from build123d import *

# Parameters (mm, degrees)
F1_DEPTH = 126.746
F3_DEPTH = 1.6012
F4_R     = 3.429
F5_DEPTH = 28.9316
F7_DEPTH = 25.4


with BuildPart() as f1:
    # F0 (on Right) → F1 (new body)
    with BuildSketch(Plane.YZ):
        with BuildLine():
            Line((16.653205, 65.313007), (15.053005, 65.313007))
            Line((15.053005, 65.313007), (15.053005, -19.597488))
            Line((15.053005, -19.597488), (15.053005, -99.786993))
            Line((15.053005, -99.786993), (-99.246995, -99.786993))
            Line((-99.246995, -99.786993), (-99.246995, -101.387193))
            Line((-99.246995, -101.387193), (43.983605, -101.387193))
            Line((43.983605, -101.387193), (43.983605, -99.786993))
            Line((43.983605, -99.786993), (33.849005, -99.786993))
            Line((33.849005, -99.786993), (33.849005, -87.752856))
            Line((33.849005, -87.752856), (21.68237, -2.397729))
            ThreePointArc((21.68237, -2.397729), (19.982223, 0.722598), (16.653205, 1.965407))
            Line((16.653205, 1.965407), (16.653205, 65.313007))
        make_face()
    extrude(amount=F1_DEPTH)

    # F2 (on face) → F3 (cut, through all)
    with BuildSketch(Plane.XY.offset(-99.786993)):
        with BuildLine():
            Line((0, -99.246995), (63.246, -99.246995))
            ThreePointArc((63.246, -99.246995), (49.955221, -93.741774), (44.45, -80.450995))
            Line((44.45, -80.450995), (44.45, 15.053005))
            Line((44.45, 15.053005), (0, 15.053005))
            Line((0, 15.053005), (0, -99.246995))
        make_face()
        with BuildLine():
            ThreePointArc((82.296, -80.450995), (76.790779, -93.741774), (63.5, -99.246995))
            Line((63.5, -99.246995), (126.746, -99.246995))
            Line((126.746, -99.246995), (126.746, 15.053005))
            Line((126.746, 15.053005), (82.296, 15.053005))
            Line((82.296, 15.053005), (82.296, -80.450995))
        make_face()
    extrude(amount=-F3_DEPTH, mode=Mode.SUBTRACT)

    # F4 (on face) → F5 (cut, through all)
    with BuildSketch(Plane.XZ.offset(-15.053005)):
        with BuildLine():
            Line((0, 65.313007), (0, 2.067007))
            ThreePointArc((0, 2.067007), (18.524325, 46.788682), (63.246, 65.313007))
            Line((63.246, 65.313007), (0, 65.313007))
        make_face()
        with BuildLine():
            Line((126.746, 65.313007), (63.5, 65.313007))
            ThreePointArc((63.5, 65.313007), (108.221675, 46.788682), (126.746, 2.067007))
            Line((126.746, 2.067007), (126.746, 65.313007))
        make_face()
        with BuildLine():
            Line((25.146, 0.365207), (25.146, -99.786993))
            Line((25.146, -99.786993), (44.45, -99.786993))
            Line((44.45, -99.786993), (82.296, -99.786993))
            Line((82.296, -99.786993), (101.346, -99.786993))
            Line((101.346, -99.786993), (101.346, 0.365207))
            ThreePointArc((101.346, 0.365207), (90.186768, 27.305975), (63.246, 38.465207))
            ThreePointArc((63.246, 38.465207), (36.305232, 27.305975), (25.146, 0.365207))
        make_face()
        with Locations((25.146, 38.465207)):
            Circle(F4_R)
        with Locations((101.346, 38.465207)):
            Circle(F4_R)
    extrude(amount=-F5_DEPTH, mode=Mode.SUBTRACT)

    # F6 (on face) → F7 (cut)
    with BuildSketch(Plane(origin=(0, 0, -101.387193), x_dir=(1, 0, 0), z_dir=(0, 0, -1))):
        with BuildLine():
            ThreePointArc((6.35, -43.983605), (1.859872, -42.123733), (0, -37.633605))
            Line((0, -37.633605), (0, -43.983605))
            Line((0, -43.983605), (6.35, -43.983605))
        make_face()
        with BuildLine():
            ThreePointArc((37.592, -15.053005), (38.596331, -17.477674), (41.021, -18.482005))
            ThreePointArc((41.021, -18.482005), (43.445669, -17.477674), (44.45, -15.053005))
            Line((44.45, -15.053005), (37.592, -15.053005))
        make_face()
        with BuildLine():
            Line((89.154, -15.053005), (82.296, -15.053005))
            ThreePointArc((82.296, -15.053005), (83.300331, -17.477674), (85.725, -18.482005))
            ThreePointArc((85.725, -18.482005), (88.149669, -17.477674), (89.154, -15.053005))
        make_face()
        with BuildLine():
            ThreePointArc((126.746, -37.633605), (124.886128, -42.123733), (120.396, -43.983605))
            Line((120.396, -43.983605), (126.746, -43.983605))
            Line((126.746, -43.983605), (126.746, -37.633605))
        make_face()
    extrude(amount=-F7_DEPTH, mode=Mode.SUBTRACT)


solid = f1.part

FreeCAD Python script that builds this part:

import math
import FreeCAD as App
import Part
import Sketcher
Q = App.Units.Quantity

doc = App.newDocument("Part")
body = doc.addObject("PartDesign::Body", "Body")

# Sketch on YZ plane
sketch1 = body.newObject("Sketcher::SketchObject", "Sketch")
sketch1.AttachmentSupport = (doc.getObject("YZ_Plane"), [""])
sketch1.MapMode = "FlatFace"
sketch1.addGeometry(Part.LineSegment(App.Vector(16.7, 65.3, 0), App.Vector(15.1, 65.3, 0)), False)
sketch1.addGeometry(Part.LineSegment(App.Vector(15.1, 65.3, 0), App.Vector(15.1, -99.8, 0)), False)
sketch1.addGeometry(Part.LineSegment(App.Vector(15.1, -99.8, 0), App.Vector(-99.2, -99.8, 0)), False)
sketch1.addGeometry(Part.LineSegment(App.Vector(-99.2, -99.8, 0), App.Vector(-99.2, -101.4, 0)), False)
sketch1.addGeometry(Part.LineSegment(App.Vector(-99.2, -101.4, 0), App.Vector(44, -101.4, 0)), False)
sketch1.addGeometry(Part.LineSegment(App.Vector(44, -101.4, 0), App.Vector(44, -99.8, 0)), False)
sketch1.addGeometry(Part.LineSegment(App.Vector(44, -99.8, 0), App.Vector(33.8, -99.8, 0)), False)
sketch1.addGeometry(Part.LineSegment(App.Vector(33.8, -99.8, 0), App.Vector(33.8, -87.8, 0)), False)
sketch1.addGeometry(Part.LineSegment(App.Vector(33.8, -87.8, 0), App.Vector(21.7, -2.4, 0)), False)
sketch1.addGeometry(Part.ArcOfCircle(Part.Circle(App.Vector(16.7, -3.1, 0), App.Vector(0, 0, 1), 5.1), math.radians(8), math.radians(90)), False)
sketch1.addGeometry(Part.LineSegment(App.Vector(16.7, 2, 0), App.Vector(16.7, 65.3, 0)), False)
sketch1.addConstraint(Sketcher.Constraint("Coincident", 0, 2, 1, 1))
sketch1.addConstraint(Sketcher.Constraint("Coincident", 1, 2, 2, 1))
sketch1.addConstraint(Sketcher.Constraint("Coincident", 2, 2, 3, 1))
sketch1.addConstraint(Sketcher.Constraint("Coincident", 3, 2, 4, 1))
sketch1.addConstraint(Sketcher.Constraint("Coincident", 4, 2, 5, 1))
sketch1.addConstraint(Sketcher.Constraint("Coincident", 5, 2, 6, 1))
sketch1.addConstraint(Sketcher.Constraint("Coincident", 6, 2, 7, 1))
sketch1.addConstraint(Sketcher.Constraint("Coincident", 7, 2, 8, 1))
sketch1.addConstraint(Sketcher.Constraint("Tangent", 8, 2, 9, 1))
sketch1.addConstraint(Sketcher.Constraint("Coincident", 9, 2, 10, 1))
sketch1.addConstraint(Sketcher.Constraint("Coincident", 10, 2, 0, 1))
sketch1.addConstraint(Sketcher.Constraint("Horizontal", 0))
sketch1.addConstraint(Sketcher.Constraint("Vertical", 1))
sketch1.addConstraint(Sketcher.Constraint("Horizontal", 2))
sketch1.addConstraint(Sketcher.Constraint("Vertical", 3))
sketch1.addConstraint(Sketcher.Constraint("Horizontal", 4))
sketch1.addConstraint(Sketcher.Constraint("Vertical", 5))
sketch1.addConstraint(Sketcher.Constraint("Horizontal", 6))
sketch1.addConstraint(Sketcher.Constraint("Vertical", 7))
sketch1.addConstraint(Sketcher.Constraint("Vertical", 10))
sketch1.addConstraint(Sketcher.Constraint("Horizontal", 2, 2, 5, 2))
sketch1.addConstraint(Sketcher.Constraint("Equal", 0, 3))
sketch1.addConstraint(Sketcher.Constraint("Radius", 9, Q("0.2 in")))
sketch1.addConstraint(Sketcher.Constraint("DistanceX", 2, 2, 2, 1, Q("4.5 in")))
sketch1.addConstraint(Sketcher.Constraint("DistanceY", 1, 2, 1, 1, Q("6.5 in")))
sketch1.addConstraint(Sketcher.Constraint("DistanceX", 0, 2, 0, 1, Q("0.063 in")))
sketch1.addConstraint(Sketcher.Constraint("DistanceX", 4, 1, 4, 2, Q("5.639 in")))
sketch1.addConstraint(Sketcher.Constraint("DistanceX", 6, 2, 6, 1, Q("0.399 in")))
sketch1.addConstraint(Sketcher.Constraint("DistanceY", 10, 1, 10, 2, Q("2.494 in")))
sketch1.addConstraint(Sketcher.Constraint("DistanceX", 0, 2, 9, 3, Q("0.063 in")))
sketch1.addConstraint(Sketcher.Constraint("Distance", 8, Q("86.217891 mm")))
sketch1.addConstraint(Sketcher.Constraint("DistanceX", -1, 1, 8, 2, Q("21.68237 mm")))
sketch1.addConstraint(Sketcher.Constraint("DistanceY", 8, 2, -1, 1, Q("2.397729 mm")))
pad1 = body.newObject("PartDesign::Pad", "Pad")
pad1.Profile = sketch1
pad1.Length = Q("4.99 in")

# Sketch on XY plane
sketch2 = body.newObject("Sketcher::SketchObject", "Sketch001")
sketch2.AttachmentSupport = (doc.getObject("XY_Plane"), [""])
sketch2.MapMode = "FlatFace"
sketch2.AttachmentOffset = App.Placement(App.Vector(0, 0, -99.786993), App.Rotation())
sketch2.addGeometry(Part.LineSegment(App.Vector(0, -99, 0), App.Vector(63, -99, 0)), False)
sketch2.addGeometry(Part.ArcOfCircle(Part.Circle(App.Vector(63, -80, 0), App.Vector(0, 0, 1), 19), math.radians(-180), math.radians(-90)), False)
sketch2.addGeometry(Part.LineSegment(App.Vector(44, -80, 0), App.Vector(44, 15, 0)), False)
sketch2.addGeometry(Part.LineSegment(App.Vector(44, 15, 0), App.Vector(0, 15, 0)), False)
sketch2.addGeometry(Part.LineSegment(App.Vector(0, 15, 0), App.Vector(0, -99, 0)), False)
sketch2.addGeometry(Part.ArcOfCircle(Part.Circle(App.Vector(63, -80, 0), App.Vector(0, 0, 1), 19), math.radians(-90), math.radians(0)), False)
sketch2.addGeometry(Part.LineSegment(App.Vector(64, -99, 0), App.Vector(127, -99, 0)), False)
sketch2.addGeometry(Part.LineSegment(App.Vector(127, -99, 0), App.Vector(127, 15, 0)), False)
sketch2.addGeometry(Part.LineSegment(App.Vector(127, 15, 0), App.Vector(82, 15, 0)), False)
sketch2.addGeometry(Part.LineSegment(App.Vector(82, 15, 0), App.Vector(82, -80, 0)), False)
sketch2.addConstraint(Sketcher.Constraint("Tangent", 0, 2, 1, 2))
sketch2.addConstraint(Sketcher.Constraint("Tangent", 1, 1, 2, 1))
sketch2.addConstraint(Sketcher.Constraint("Coincident", 2, 2, 3, 1))
sketch2.addConstraint(Sketcher.Constraint("Coincident", 3, 2, 4, 1))
sketch2.addConstraint(Sketcher.Constraint("Coincident", 4, 2, 0, 1))
sketch2.addConstraint(Sketcher.Constraint("Tangent", 5, 1, 6, 1))
sketch2.addConstraint(Sketcher.Constraint("Coincident", 6, 2, 7, 1))
sketch2.addConstraint(Sketcher.Constraint("Coincident", 7, 2, 8, 1))
sketch2.addConstraint(Sketcher.Constraint("Coincident", 8, 2, 9, 1))
sketch2.addConstraint(Sketcher.Constraint("Tangent", 9, 2, 5, 2))
sketch2.addConstraint(Sketcher.Constraint("Horizontal", 0))
sketch2.addConstraint(Sketcher.Constraint("Vertical", 2))
sketch2.addConstraint(Sketcher.Constraint("Horizontal", 3))
sketch2.addConstraint(Sketcher.Constraint("Vertical", 4))
sketch2.addConstraint(Sketcher.Constraint("Horizontal", 6))
sketch2.addConstraint(Sketcher.Constraint("Vertical", 7))
sketch2.addConstraint(Sketcher.Constraint("Horizontal", 8))
sketch2.addConstraint(Sketcher.Constraint("Vertical", 9))
sketch2.addConstraint(Sketcher.Constraint("Equal", 1, 5))
sketch2.addConstraint(Sketcher.Constraint("PointOnObject", 3, 2, -2))
sketch2.addConstraint(Sketcher.Constraint("Horizontal", 1, 3, 5, 3))
sketch2.addConstraint(Sketcher.Constraint("Horizontal", 3, 2, 7, 2))
sketch2.addConstraint(Sketcher.Constraint("Equal", 0, 6))
sketch2.addConstraint(Sketcher.Constraint("Radius", 1, Q("0.74 in")))
sketch2.addConstraint(Sketcher.Constraint("DistanceY", 4, 2, 4, 1, Q("4.5 in")))
sketch2.addConstraint(Sketcher.Constraint("DistanceX", 0, 1, 0, 2, Q("2.49 in")))
sketch2.addConstraint(Sketcher.Constraint("DistanceX", -1, 1, 5, 3, Q("2.5 in")))
sketch2.addConstraint(Sketcher.Constraint("DistanceY", 1, 3, -1, 1, Q("80.450995 mm")))
pocket1 = body.newObject("PartDesign::Pocket", "Pocket")
pocket1.Profile = sketch2
pocket1.Type = "ThroughAll"

# Sketch on XZ plane
sketch3 = body.newObject("Sketcher::SketchObject", "Sketch002")
sketch3.AttachmentSupport = (doc.getObject("XZ_Plane"), [""])
sketch3.MapMode = "FlatFace"
sketch3.AttachmentOffset = App.Placement(App.Vector(0, 0, -15.053005), App.Rotation())
sketch3.addGeometry(Part.LineSegment(App.Vector(0, 65.3, 0), App.Vector(0, 2.1, 0)), False)
sketch3.addGeometry(Part.ArcOfCircle(Part.Circle(App.Vector(63.2, 2.1, 0), App.Vector(0, 0, 1), 63.2), math.radians(90), math.radians(180)), False)
sketch3.addGeometry(Part.LineSegment(App.Vector(63.2, 65.3, 0), App.Vector(0, 65.3, 0)), False)
sketch3.addGeometry(Part.LineSegment(App.Vector(126.7, 65.3, 0), App.Vector(63.5, 65.3, 0)), False)
sketch3.addGeometry(Part.ArcOfCircle(Part.Circle(App.Vector(63.5, 2.1, 0), App.Vector(0, 0, 1), 63.2), math.radians(0), math.radians(90)), False)
sketch3.addGeometry(Part.LineSegment(App.Vector(126.7, 2.1, 0), App.Vector(126.7, 65.3, 0)), False)
sketch3.addGeometry(Part.LineSegment(App.Vector(25.1, 0.4, 0), App.Vector(25.1, -99.8, 0)), False)
sketch3.addGeometry(Part.LineSegment(App.Vector(25.1, -99.8, 0), App.Vector(101.3, -99.8, 0)), False)
sketch3.addGeometry(Part.LineSegment(App.Vector(101.3, -99.8, 0), App.Vector(101.3, 0.4, 0)), False)
sketch3.addGeometry(Part.ArcOfCircle(Part.Circle(App.Vector(63.2, 0.4, 0), App.Vector(0, 0, 1), 38.1), math.radians(0), math.radians(90)), False)
sketch3.addGeometry(Part.ArcOfCircle(Part.Circle(App.Vector(63.2, 0.4, 0), App.Vector(0, 0, 1), 38.1), math.radians(90), math.radians(180)), False)
sketch3.addGeometry(Part.Circle(App.Vector(25.1, 38.5, 0), App.Vector(0, 0, 1), 3.4), False)
sketch3.addGeometry(Part.Circle(App.Vector(101.3, 38.5, 0), App.Vector(0, 0, 1), 3.4), False)
sketch3.addConstraint(Sketcher.Constraint("Tangent", 0, 2, 1, 2))
sketch3.addConstraint(Sketcher.Constraint("Tangent", 1, 1, 2, 1))
sketch3.addConstraint(Sketcher.Constraint("Coincident", 2, 2, 0, 1))
sketch3.addConstraint(Sketcher.Constraint("Tangent", 3, 2, 4, 2))
sketch3.addConstraint(Sketcher.Constraint("Tangent", 4, 1, 5, 1))
sketch3.addConstraint(Sketcher.Constraint("Coincident", 5, 2, 3, 1))
sketch3.addConstraint(Sketcher.Constraint("Coincident", 6, 2, 7, 1))
sketch3.addConstraint(Sketcher.Constraint("Coincident", 7, 2, 8, 1))
sketch3.addConstraint(Sketcher.Constraint("Tangent", 8, 2, 9, 1))
sketch3.addConstraint(Sketcher.Constraint("Tangent", 9, 2, 10, 1))
sketch3.addConstraint(Sketcher.Constraint("Tangent", 10, 2, 6, 1))
sketch3.addConstraint(Sketcher.Constraint("Vertical", 0))
sketch3.addConstraint(Sketcher.Constraint("Horizontal", 2))
sketch3.addConstraint(Sketcher.Constraint("Horizontal", 3))
sketch3.addConstraint(Sketcher.Constraint("Vertical", 5))
sketch3.addConstraint(Sketcher.Constraint("Vertical", 6))
sketch3.addConstraint(Sketcher.Constraint("Horizontal", 7))
sketch3.addConstraint(Sketcher.Constraint("Vertical", 8))
sketch3.addConstraint(Sketcher.Constraint("Equal", 1, 4))
sketch3.addConstraint(Sketcher.Constraint("Equal", 9, 10))
sketch3.addConstraint(Sketcher.Constraint("Equal", 11, 12))
sketch3.addConstraint(Sketcher.Constraint("PointOnObject", 0, 2, -2))
sketch3.addConstraint(Sketcher.Constraint("Horizontal", 1, 3, 4, 3))
sketch3.addConstraint(Sketcher.Constraint("Horizontal", 11, 3, 12, 3))
sketch3.addConstraint(Sketcher.Constraint("Horizontal", 12, 3, 9, 2))
sketch3.addConstraint(Sketcher.Constraint("Vertical", 1, 3, 10, 3))
sketch3.addConstraint(Sketcher.Constraint("Vertical", 11, 3, 6, 2))
sketch3.addConstraint(Sketcher.Constraint("Vertical", 12, 3, 7, 2))
sketch3.addConstraint(Sketcher.Constraint("Vertical", 1, 1, 9, 2))
sketch3.addConstraint(Sketcher.Constraint("Radius", 9, Q("1.5 in")))
sketch3.addConstraint(Sketcher.Constraint("Diameter", 11, Q("0.27 in")))
sketch3.addConstraint(Sketcher.Constraint("Radius", 1, Q("2.4900001 in")))
sketch3.addConstraint(Sketcher.Constraint("DistanceX", 12, 3, 4, 1, Q("1 in")))
sketch3.addConstraint(Sketcher.Constraint("DistanceY", 6, 2, 6, 1, Q("3.943 in")))
sketch3.addConstraint(Sketcher.Constraint("DistanceY", 6, 2, 0, 2, Q("4.01 in")))
sketch3.addConstraint(Sketcher.Constraint("DistanceY", -1, 1, 1, 3, Q("2.067005 mm")))
pocket2 = body.newObject("PartDesign::Pocket", "Pocket001")
pocket2.Profile = sketch3
pocket2.Type = "ThroughAll"

# Sketch on XY plane
sketch4 = body.newObject("Sketcher::SketchObject", "Sketch003")
sketch4.AttachmentSupport = (doc.getObject("XY_Plane"), [""])
sketch4.MapMode = "FlatFace"
sketch4.AttachmentOffset = App.Placement(App.Vector(0, 0, -101.387193), App.Rotation())
sketch4.addGeometry(Part.ArcOfCircle(Part.Circle(App.Vector(6.4, 37.6, 0), App.Vector(0, 0, 1), 6.4), math.radians(90), math.radians(180)), False)
sketch4.addGeometry(Part.LineSegment(App.Vector(0, 37.6, 0), App.Vector(0, 44, 0)), False)
sketch4.addGeometry(Part.LineSegment(App.Vector(0, 44, 0), App.Vector(6.3, 44, 0)), False)
sketch4.addGeometry(Part.ArcOfCircle(Part.Circle(App.Vector(41, 15.1, 0), App.Vector(0, 0, 1), 3.4), math.radians(90), math.radians(180)), False)
sketch4.addGeometry(Part.ArcOfCircle(Part.Circle(App.Vector(41, 15.1, 0), App.Vector(0, 0, 1), 3.4), math.radians(0), math.radians(90)), False)
sketch4.addGeometry(Part.LineSegment(App.Vector(44.5, 15.1, 0), App.Vector(37.6, 15.1, 0)), False)
sketch4.addGeometry(Part.LineSegment(App.Vector(89.2, 15.1, 0), App.Vector(82.3, 15.1, 0)), False)
sketch4.addGeometry(Part.ArcOfCircle(Part.Circle(App.Vector(85.7, 15.1, 0), App.Vector(0, 0, 1), 3.4), math.radians(90), math.radians(180)), False)
sketch4.addGeometry(Part.ArcOfCircle(Part.Circle(App.Vector(85.7, 15.1, 0), App.Vector(0, 0, 1), 3.4), math.radians(0), math.radians(90)), False)
sketch4.addGeometry(Part.ArcOfCircle(Part.Circle(App.Vector(120.4, 37.6, 0), App.Vector(0, 0, 1), 6.4), math.radians(0), math.radians(90)), False)
sketch4.addGeometry(Part.LineSegment(App.Vector(120.4, 44, 0), App.Vector(126.7, 44, 0)), False)
sketch4.addGeometry(Part.LineSegment(App.Vector(126.7, 44, 0), App.Vector(126.7, 37.6, 0)), False)
sketch4.addConstraint(Sketcher.Constraint("Tangent", 0, 2, 1, 1))
sketch4.addConstraint(Sketcher.Constraint("Coincident", 1, 2, 2, 1))
sketch4.addConstraint(Sketcher.Constraint("Tangent", 2, 2, 0, 1))
sketch4.addConstraint(Sketcher.Constraint("Tangent", 3, 1, 4, 2))
sketch4.addConstraint(Sketcher.Constraint("Coincident", 4, 1, 5, 1))
sketch4.addConstraint(Sketcher.Constraint("Coincident", 5, 2, 3, 2))
sketch4.addConstraint(Sketcher.Constraint("Coincident", 6, 2, 7, 2))
sketch4.addConstraint(Sketcher.Constraint("Tangent", 7, 1, 8, 2))
sketch4.addConstraint(Sketcher.Constraint("Coincident", 8, 1, 6, 1))
sketch4.addConstraint(Sketcher.Constraint("Tangent", 9, 2, 10, 1))
sketch4.addConstraint(Sketcher.Constraint("Coincident", 10, 2, 11, 1))
sketch4.addConstraint(Sketcher.Constraint("Tangent", 11, 2, 9, 1))
sketch4.addConstraint(Sketcher.Constraint("Vertical", 1))
sketch4.addConstraint(Sketcher.Constraint("Horizontal", 2))
sketch4.addConstraint(Sketcher.Constraint("Horizontal", 5))
sketch4.addConstraint(Sketcher.Constraint("Horizontal", 6))
sketch4.addConstraint(Sketcher.Constraint("Horizontal", 10))
sketch4.addConstraint(Sketcher.Constraint("Vertical", 11))
sketch4.addConstraint(Sketcher.Constraint("Equal", 3, 4))
sketch4.addConstraint(Sketcher.Constraint("Equal", 4, 7))
sketch4.addConstraint(Sketcher.Constraint("Equal", 7, 8))
sketch4.addConstraint(Sketcher.Constraint("Equal", 0, 9))
sketch4.addConstraint(Sketcher.Constraint("PointOnObject", 0, 2, -2))
sketch4.addConstraint(Sketcher.Constraint("Horizontal", 4, 3, 7, 3))
sketch4.addConstraint(Sketcher.Constraint("Horizontal", 0, 3, 9, 3))
sketch4.addConstraint(Sketcher.Constraint("Horizontal", 8, 3, 4, 1))
sketch4.addConstraint(Sketcher.Constraint("Horizontal", 5, 2, 6, 2))
sketch4.addConstraint(Sketcher.Constraint("Vertical", 4, 3, 3, 1))
sketch4.addConstraint(Sketcher.Constraint("Vertical", 8, 3, 7, 1))
sketch4.addConstraint(Sketcher.Constraint("Radius", 0, Q("0.25 in")))
sketch4.addConstraint(Sketcher.Constraint("Radius", 3, Q("0.135 in")))
sketch4.addConstraint(Sketcher.Constraint("DistanceX", -1, 1, 9, 3, Q("4.74 in")))
sketch4.addConstraint(Sketcher.Constraint("DistanceX", -1, 1, 4, 1, Q("1.75 in")))
sketch4.addConstraint(Sketcher.Constraint("DistanceX", -1, 1, 6, 2, Q("3.24 in")))
sketch4.addConstraint(Sketcher.Constraint("DistanceY", 3, 3, 0, 3, Q("0.889 in")))
sketch4.addConstraint(Sketcher.Constraint("DistanceY", -1, 1, 0, 3, Q("37.633605 mm")))
pocket3 = body.newObject("PartDesign::Pocket", "Pocket002")
pocket3.Profile = sketch4
pocket3.Length = Q("1 in")
pocket3.Reversed = True

doc.recompute()
